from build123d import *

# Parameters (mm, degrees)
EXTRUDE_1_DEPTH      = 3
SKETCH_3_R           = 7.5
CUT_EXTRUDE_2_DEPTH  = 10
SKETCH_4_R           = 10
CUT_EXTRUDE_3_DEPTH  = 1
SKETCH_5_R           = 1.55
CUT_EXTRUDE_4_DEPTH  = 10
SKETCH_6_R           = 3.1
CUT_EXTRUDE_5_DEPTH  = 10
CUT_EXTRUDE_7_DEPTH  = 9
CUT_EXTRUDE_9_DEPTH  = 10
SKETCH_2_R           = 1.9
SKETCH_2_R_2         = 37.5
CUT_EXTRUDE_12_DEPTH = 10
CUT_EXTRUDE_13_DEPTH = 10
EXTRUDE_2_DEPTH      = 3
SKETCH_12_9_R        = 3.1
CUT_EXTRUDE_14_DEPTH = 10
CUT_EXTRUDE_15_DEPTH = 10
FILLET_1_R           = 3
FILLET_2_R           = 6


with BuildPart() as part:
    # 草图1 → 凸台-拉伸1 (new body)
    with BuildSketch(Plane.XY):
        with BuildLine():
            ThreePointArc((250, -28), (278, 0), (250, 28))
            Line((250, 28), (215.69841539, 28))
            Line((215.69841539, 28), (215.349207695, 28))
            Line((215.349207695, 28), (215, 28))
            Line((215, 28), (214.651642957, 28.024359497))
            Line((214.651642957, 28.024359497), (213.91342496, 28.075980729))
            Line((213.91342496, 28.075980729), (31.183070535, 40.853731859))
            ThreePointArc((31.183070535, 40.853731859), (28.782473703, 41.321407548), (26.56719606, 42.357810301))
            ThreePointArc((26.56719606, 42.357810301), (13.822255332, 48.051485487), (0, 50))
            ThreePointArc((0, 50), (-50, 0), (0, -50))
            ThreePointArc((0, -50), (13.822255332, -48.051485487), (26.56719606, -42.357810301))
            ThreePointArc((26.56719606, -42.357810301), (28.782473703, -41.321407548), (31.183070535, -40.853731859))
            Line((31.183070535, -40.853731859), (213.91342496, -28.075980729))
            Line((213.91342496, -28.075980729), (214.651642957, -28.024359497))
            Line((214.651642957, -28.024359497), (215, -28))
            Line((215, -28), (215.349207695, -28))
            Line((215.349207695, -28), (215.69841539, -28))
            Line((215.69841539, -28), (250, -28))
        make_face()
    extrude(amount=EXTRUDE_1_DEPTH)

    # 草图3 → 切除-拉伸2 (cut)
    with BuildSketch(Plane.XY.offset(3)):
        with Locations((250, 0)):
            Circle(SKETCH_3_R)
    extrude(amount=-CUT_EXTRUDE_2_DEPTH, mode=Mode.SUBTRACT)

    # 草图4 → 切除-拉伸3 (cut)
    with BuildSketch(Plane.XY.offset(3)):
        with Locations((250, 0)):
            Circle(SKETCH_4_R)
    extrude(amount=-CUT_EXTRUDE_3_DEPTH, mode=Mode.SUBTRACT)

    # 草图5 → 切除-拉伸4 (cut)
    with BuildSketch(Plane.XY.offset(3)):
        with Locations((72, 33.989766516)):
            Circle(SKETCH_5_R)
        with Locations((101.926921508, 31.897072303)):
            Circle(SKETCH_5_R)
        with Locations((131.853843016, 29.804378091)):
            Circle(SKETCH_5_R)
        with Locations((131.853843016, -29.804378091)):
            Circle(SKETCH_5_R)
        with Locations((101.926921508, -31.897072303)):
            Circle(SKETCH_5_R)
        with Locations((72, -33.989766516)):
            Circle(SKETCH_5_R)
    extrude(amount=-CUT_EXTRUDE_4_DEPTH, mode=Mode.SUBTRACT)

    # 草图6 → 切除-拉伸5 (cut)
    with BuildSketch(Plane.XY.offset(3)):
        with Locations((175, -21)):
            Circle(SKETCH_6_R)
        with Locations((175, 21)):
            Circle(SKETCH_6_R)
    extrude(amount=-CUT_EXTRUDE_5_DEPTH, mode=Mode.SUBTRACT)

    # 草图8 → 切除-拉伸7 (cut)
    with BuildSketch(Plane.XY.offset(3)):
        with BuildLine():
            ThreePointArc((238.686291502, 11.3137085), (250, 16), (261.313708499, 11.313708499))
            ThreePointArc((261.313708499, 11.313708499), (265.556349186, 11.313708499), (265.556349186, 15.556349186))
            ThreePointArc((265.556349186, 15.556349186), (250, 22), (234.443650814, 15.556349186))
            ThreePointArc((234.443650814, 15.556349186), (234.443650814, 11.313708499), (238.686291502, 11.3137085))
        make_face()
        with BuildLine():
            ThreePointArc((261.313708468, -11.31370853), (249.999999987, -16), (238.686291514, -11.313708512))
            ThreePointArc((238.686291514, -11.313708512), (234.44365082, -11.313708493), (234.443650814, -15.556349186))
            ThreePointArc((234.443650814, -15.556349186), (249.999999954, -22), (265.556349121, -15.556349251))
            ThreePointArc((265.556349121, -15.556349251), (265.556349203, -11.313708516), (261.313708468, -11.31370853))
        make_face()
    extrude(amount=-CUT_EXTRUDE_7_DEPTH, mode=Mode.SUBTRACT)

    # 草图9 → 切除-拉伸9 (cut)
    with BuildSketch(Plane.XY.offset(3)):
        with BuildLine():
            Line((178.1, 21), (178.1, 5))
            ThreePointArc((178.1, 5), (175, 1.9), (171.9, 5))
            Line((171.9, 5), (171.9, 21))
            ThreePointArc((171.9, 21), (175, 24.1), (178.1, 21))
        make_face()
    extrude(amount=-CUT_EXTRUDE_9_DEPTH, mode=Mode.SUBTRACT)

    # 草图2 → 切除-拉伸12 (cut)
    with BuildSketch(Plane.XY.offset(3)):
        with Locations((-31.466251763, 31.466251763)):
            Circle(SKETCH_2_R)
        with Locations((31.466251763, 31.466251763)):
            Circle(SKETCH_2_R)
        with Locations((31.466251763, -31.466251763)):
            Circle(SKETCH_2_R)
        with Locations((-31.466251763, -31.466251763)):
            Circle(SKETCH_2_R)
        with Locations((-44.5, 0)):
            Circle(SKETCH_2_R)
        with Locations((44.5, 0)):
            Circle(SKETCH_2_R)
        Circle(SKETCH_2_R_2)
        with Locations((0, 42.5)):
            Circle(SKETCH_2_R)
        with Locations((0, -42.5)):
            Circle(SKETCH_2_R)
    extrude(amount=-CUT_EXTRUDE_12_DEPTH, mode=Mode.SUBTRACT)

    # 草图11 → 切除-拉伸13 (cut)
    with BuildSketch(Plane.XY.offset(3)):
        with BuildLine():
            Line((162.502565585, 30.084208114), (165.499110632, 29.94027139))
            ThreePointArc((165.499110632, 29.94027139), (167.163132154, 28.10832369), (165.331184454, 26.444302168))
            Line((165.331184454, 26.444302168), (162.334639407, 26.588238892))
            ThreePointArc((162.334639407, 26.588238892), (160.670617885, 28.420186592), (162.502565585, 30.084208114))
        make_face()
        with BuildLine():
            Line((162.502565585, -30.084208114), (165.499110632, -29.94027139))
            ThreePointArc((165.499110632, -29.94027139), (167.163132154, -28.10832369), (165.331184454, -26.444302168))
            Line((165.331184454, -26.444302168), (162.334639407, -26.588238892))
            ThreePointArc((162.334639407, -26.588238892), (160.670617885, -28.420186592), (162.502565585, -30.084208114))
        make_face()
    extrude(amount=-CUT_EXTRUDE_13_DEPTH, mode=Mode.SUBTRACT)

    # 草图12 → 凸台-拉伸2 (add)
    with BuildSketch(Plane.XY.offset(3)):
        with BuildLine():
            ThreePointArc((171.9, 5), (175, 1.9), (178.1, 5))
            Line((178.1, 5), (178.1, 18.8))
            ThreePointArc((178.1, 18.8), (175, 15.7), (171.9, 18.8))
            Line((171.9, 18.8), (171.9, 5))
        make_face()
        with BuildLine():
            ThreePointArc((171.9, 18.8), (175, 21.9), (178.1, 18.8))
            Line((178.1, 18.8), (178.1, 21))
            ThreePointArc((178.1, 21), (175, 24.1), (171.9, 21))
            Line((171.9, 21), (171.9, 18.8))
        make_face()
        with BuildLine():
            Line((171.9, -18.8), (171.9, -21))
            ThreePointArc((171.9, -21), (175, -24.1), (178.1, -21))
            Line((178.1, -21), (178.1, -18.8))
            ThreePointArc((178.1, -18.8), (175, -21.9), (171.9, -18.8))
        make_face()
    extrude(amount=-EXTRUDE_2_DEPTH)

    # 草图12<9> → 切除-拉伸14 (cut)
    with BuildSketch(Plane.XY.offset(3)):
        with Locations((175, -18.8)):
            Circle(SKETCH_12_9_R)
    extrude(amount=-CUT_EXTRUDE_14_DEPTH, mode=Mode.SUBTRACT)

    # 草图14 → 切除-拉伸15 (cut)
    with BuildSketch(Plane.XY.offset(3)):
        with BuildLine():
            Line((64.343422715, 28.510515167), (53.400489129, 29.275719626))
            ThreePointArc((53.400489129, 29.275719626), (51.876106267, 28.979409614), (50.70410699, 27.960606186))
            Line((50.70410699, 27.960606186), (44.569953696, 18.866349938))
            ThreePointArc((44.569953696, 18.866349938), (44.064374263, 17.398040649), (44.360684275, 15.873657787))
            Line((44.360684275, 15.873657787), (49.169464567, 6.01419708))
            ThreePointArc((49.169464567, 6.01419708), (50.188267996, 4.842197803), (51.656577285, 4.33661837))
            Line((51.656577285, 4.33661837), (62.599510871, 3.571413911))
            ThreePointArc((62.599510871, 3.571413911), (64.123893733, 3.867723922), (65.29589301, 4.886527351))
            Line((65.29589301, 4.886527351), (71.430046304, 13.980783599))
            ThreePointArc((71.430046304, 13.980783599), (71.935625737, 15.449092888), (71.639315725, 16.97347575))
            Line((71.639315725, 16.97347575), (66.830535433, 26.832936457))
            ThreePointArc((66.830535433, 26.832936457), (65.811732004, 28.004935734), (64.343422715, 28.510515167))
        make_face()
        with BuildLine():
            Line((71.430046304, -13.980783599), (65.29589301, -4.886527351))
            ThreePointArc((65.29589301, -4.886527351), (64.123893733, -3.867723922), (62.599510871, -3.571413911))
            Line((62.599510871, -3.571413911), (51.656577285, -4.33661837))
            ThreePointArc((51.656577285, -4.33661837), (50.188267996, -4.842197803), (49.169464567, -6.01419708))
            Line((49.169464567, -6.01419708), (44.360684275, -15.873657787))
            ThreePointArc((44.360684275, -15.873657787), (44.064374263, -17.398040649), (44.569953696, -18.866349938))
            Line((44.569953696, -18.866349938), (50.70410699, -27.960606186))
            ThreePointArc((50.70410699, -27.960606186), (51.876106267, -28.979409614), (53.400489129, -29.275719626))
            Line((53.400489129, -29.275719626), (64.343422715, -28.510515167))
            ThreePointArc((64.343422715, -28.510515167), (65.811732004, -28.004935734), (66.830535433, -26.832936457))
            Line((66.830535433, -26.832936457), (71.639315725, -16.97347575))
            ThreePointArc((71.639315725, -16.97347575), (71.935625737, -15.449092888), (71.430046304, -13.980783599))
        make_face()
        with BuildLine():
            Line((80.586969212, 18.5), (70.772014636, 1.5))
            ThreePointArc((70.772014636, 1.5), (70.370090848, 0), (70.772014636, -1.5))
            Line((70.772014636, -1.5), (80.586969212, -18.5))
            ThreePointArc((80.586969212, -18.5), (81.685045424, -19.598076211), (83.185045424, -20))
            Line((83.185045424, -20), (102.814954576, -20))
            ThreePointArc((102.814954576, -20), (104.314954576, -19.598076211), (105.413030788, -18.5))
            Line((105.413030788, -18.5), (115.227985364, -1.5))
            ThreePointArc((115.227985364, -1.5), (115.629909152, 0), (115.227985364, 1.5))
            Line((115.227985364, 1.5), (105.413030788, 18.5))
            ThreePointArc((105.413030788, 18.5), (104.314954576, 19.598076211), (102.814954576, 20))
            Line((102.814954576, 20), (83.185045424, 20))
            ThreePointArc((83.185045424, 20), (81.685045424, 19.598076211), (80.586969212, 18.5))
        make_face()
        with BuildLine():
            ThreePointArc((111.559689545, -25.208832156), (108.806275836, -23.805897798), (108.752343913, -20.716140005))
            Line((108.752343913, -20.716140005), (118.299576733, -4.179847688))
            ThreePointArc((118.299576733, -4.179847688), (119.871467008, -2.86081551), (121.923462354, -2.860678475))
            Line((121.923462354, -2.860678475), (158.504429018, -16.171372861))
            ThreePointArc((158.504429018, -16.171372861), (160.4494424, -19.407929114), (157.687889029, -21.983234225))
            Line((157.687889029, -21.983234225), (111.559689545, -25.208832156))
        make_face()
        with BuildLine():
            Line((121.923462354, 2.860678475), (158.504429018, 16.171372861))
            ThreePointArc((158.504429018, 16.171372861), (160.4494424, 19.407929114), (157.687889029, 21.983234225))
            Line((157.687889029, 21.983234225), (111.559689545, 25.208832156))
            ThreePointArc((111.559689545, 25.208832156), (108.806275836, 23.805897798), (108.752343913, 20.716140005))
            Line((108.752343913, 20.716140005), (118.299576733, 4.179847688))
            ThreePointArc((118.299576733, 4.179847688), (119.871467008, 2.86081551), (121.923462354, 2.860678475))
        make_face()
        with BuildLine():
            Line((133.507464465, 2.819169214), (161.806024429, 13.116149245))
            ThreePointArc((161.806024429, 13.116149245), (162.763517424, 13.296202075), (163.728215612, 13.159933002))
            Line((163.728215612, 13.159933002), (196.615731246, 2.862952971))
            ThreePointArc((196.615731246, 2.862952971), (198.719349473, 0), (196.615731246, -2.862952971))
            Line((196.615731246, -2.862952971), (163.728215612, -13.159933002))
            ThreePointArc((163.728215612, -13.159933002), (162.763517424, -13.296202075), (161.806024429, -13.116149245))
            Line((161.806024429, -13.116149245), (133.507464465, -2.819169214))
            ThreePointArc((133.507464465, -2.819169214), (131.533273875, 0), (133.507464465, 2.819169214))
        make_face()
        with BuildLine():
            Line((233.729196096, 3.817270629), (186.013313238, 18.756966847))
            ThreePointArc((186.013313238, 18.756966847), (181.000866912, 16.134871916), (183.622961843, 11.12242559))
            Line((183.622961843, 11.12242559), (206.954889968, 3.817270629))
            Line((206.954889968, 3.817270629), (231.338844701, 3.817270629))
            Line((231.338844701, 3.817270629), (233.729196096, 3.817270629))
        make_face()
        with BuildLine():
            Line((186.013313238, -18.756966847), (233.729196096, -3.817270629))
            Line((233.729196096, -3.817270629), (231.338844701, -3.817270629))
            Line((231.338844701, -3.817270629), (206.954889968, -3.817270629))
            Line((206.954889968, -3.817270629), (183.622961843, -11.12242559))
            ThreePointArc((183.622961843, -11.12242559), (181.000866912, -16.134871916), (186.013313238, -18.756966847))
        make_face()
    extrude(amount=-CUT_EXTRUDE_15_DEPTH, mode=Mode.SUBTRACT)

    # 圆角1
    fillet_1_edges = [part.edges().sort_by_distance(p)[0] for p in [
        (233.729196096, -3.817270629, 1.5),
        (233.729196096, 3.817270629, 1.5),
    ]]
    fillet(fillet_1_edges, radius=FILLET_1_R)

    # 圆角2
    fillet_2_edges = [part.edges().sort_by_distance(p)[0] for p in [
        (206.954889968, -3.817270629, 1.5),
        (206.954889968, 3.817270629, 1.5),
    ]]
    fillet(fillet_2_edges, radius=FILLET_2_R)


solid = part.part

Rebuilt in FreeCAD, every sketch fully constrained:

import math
import FreeCAD as App
import Part
import Sketcher
from FreeCAD import Vector
Q = App.Units.Quantity


def edges_at(feature, points):
    """Names of the edges that pass closest to the given points."""
    edges = feature.Shape.Edges
    near = lambda p: min(range(len(edges)), key=lambda i: edges[i].distToShape(Part.Vertex(*p))[0])
    return sorted({f"Edge{near(p) + 1}" for p in points})

doc = App.newDocument("Part")
body = doc.addObject("PartDesign::Body", "Body")

sketch1 = body.newObject("Sketcher::SketchObject", "Sketch")
sketch1.AttachmentSupport = (doc.getObject("XY_Plane"), [""])
sketch1.MapMode = "FlatFace"
sketch1.addGeometry([
    Part.ArcOfCircle(Part.Circle(Vector(250, 0, 0), Vector(0, 0, 1), 28), math.radians(-90), math.radians(90)),
    Part.LineSegment(Vector(250, 28, 0), Vector(215, 28, 0)),
    Part.LineSegment(Vector(215, 28, 0), Vector(214.651643, 28.024359, 0)),
    Part.LineSegment(Vector(214.651643, 28.024359, 0), Vector(213.913425, 28.075981, 0)),
    Part.LineSegment(Vector(213.913425, 28.075981, 0), Vector(31.183071, 40.853732, 0)),
    Part.ArcOfCircle(Part.Circle(Vector(31.880635, 50.829372, 0), Vector(0, 0, 1), 10), math.radians(-122.096303), math.radians(-94)),
    Part.ArcOfCircle(Part.Circle(Vector(0, 0, 0), Vector(0, 0, 1), 50), math.radians(57.903697), math.radians(90)),
    Part.ArcOfCircle(Part.Circle(Vector(0, 0, 0), Vector(0, 0, 1), 50), math.radians(90), math.radians(270)),
    Part.ArcOfCircle(Part.Circle(Vector(0, 0, 0), Vector(0, 0, 1), 50), math.radians(-90), math.radians(-57.903697)),
    Part.ArcOfCircle(Part.Circle(Vector(31.880635, -50.829372, 0), Vector(0, 0, 1), 10), math.radians(94), math.radians(122.096303)),
    Part.LineSegment(Vector(31.183071, -40.853732, 0), Vector(213.913425, -28.075981, 0)),
    Part.LineSegment(Vector(213.913425, -28.075981, 0), Vector(214.651643, -28.024359, 0)),
    Part.LineSegment(Vector(214.651643, -28.024359, 0), Vector(215, -28, 0)),
    Part.LineSegment(Vector(215, -28, 0), Vector(250, -28, 0)),
], False)
sketch1.addConstraint([
    Sketcher.Constraint("Tangent", 0, 2, 1, 1),
    Sketcher.Constraint("Coincident", 1, 2, 2, 1),
    Sketcher.Constraint("Coincident", 2, 2, 3, 1),
    Sketcher.Constraint("Coincident", 3, 2, 4, 1),
    Sketcher.Constraint("Tangent", 4, 2, 5, 2),
    Sketcher.Constraint("Tangent", 5, 1, 6, 1),
    Sketcher.Constraint("Tangent", 6, 2, 7, 1),
    Sketcher.Constraint("Tangent", 7, 2, 8, 1),
    Sketcher.Constraint("Tangent", 8, 2, 9, 2),
    Sketcher.Constraint("Tangent", 9, 1, 10, 1),
    Sketcher.Constraint("Coincident", 10, 2, 11, 1),
    Sketcher.Constraint("Coincident", 11, 2, 12, 1),
    Sketcher.Constraint("Coincident", 12, 2, 13, 1),
    Sketcher.Constraint("Tangent", 13, 2, 0, 1),
    Sketcher.Constraint("Horizontal", 1),
    Sketcher.Constraint("Horizontal", 13),
    Sketcher.Constraint("Coincident", 6, 3, -1, 1),
    Sketcher.Constraint("Equal", 6, 7),
    Sketcher.Constraint("Equal", 7, 8),
    Sketcher.Constraint("Equal", 5, 9),
    Sketcher.Constraint("Symmetric", 4, 2, 9, 1, -1),
    Sketcher.Constraint("Symmetric", 2, 2, 11, 2, -1),
    Sketcher.Constraint("Symmetric", 1, 2, 12, 2, -1),
    Sketcher.Constraint("PointOnObject", 6, 2, -2),
    Sketcher.Constraint("PointOnObject", 7, 2, -2),
    Sketcher.Constraint("Parallel", 2, 3),
    Sketcher.Constraint("Parallel", 3, 4),
    Sketcher.Constraint("Vertical", 3, 2, 10, 2),
    Sketcher.Constraint("Radius", 0, Q("28 mm")),
    Sketcher.Constraint("Radius", 5, Q("10 mm")),
    Sketcher.Constraint("Radius", 6, Q("50 mm")),
    Sketcher.Constraint("DistanceX", 1, 2, 1, 1, Q("35 mm")),
    Sketcher.Constraint("Angle", 4, Q("176 deg")),
    Sketcher.Constraint("DistanceX", -1, 1, 0, 3, Q("250 mm")),
    Sketcher.Constraint("Distance", 3, Q("0.740021 mm")),
    Sketcher.Constraint("DistanceY", -1, 1, 2, 2, Q("28.024359 mm")),
])
pad1 = body.newObject("PartDesign::Pad", "Pad")
pad1.Profile = sketch1
pad1.Length = 3

sketch2 = body.newObject("Sketcher::SketchObject", "Sketch001")
sketch2.AttachmentSupport = (doc.getObject("XY_Plane"), [""])
sketch2.MapMode = "FlatFace"
sketch2.AttachmentOffset = App.Placement(Vector(0, 0, 3), App.Rotation())
sketch2.addGeometry(Part.Circle(Vector(250, 0, 0), Vector(0, 0, 1), 7.5), False)
sketch2.addConstraint([
    Sketcher.Constraint("PointOnObject", 0, 3, -1),
    Sketcher.Constraint("Diameter", 0, Q("15 mm")),
    Sketcher.Constraint("DistanceX", -1, 1, 0, 3, Q("250 mm")),
])
pocket1 = body.newObject("PartDesign::Pocket", "Pocket")
pocket1.Profile = sketch2
pocket1.Length = 10

sketch3 = body.newObject("Sketcher::SketchObject", "Sketch002")
sketch3.AttachmentSupport = (doc.getObject("XY_Plane"), [""])
sketch3.MapMode = "FlatFace"
sketch3.AttachmentOffset = App.Placement(Vector(0, 0, 3), App.Rotation())
sketch3.addGeometry(Part.Circle(Vector(250, 0, 0), Vector(0, 0, 1), 10), False)
sketch3.addConstraint([
    Sketcher.Constraint("PointOnObject", 0, 3, -1),
    Sketcher.Constraint("Diameter", 0, Q("20 mm")),
    Sketcher.Constraint("DistanceX", -1, 1, 0, 3, Q("250 mm")),
])
pocket2 = body.newObject("PartDesign::Pocket", "Pocket001")
pocket2.Profile = sketch3
pocket2.Length = 1

sketch4 = body.newObject("Sketcher::SketchObject", "Sketch003")
sketch4.AttachmentSupport = (doc.getObject("XY_Plane"), [""])
sketch4.MapMode = "FlatFace"
sketch4.AttachmentOffset = App.Placement(Vector(0, 0, 3), App.Rotation())
sketch4.addGeometry([
    Part.Circle(Vector(72, 33.989767, 0), Vector(0, 0, 1), 1.55),
    Part.Circle(Vector(101.926922, 31.897072, 0), Vector(0, 0, 1), 1.55),
    Part.Circle(Vector(131.853843, 29.804378, 0), Vector(0, 0, 1), 1.55),
    Part.Circle(Vector(131.853843, -29.804378, 0), Vector(0, 0, 1), 1.55),
    Part.Circle(Vector(101.926922, -31.897072, 0), Vector(0, 0, 1), 1.55),
    Part.Circle(Vector(72, -33.989767, 0), Vector(0, 0, 1), 1.55),
], False)
sketch4.addConstraint([
    Sketcher.Constraint("Equal", 0, 1),
    Sketcher.Constraint("Equal", 1, 2),
    Sketcher.Constraint("Equal", 2, 3),
    Sketcher.Constraint("Equal", 3, 4),
    Sketcher.Constraint("Equal", 4, 5),
    Sketcher.Constraint("Symmetric", 2, 3, 3, 3, -1),
    Sketcher.Constraint("Symmetric", 1, 3, 4, 3, -1),
    Sketcher.Constraint("Symmetric", 0, 3, 5, 3, -1),
    Sketcher.Constraint("Diameter", 0, Q("3.1 mm")),
    Sketcher.Constraint("DistanceX", -1, 1, 0, 3, Q("72 mm")),
    Sketcher.Constraint("DistanceX", -1, 1, 1, 3, Q("101.926922 mm")),
    Sketcher.Constraint("DistanceY", -1, 1, 2, 3, Q("29.804378 mm")),
    Sketcher.Constraint("DistanceX", 1, 3, 2, 3, Q("29.926922 mm")),
    Sketcher.Constraint("DistanceY", 2, 3, 0, 3, Q("4.185388 mm")),
    Sketcher.Constraint("DistanceY", 3, 3, 1, 3, Q("61.70145 mm")),
])
pocket3 = body.newObject("PartDesign::Pocket", "Pocket002")
pocket3.Profile = sketch4
pocket3.Length = 10

sketch5 = body.newObject("Sketcher::SketchObject", "Sketch004")
sketch5.AttachmentSupport = (doc.getObject("XY_Plane"), [""])
sketch5.MapMode = "FlatFace"
sketch5.AttachmentOffset = App.Placement(Vector(0, 0, 3), App.Rotation())
sketch5.addGeometry([
    Part.Circle(Vector(175, -21, 0), Vector(0, 0, 1), 3.1),
    Part.Circle(Vector(175, 21, 0), Vector(0, 0, 1), 3.1),
], False)
sketch5.addConstraint([
    Sketcher.Constraint("Equal", 0, 1),
    Sketcher.Constraint("Symmetric", 0, 3, 1, 3, -1),
    Sketcher.Constraint("Diameter", 0, Q("6.2 mm")),
    Sketcher.Constraint("DistanceX", -1, 1, 0, 3, Q("175 mm")),
    Sketcher.Constraint("DistanceY", 0, 3, -1, 1, Q("21 mm")),
])
pocket4 = body.newObject("PartDesign::Pocket", "Pocket003")
pocket4.Profile = sketch5
pocket4.Length = 10

sketch6 = body.newObject("Sketcher::SketchObject", "Sketch005")
sketch6.AttachmentSupport = (doc.getObject("XY_Plane"), [""])
sketch6.MapMode = "FlatFace"
sketch6.AttachmentOffset = App.Placement(Vector(0, 0, 3), App.Rotation())
sketch6.addGeometry([
    Part.ArcOfCircle(Part.Circle(Vector(250, 0, 0), Vector(0, 0, 1), 16), math.radians(45), math.radians(135)),
    Part.ArcOfCircle(Part.Circle(Vector(263.435029, 13.435029, 0), Vector(0, 0, 1), 3), math.radians(-135), math.radians(45)),
    Part.ArcOfCircle(Part.Circle(Vector(250, 0, 0), Vector(0, 0, 1), 22), math.radians(45), math.radians(135)),
    Part.ArcOfCircle(Part.Circle(Vector(236.564971, 13.435029, 0), Vector(0, 0, 1), 3), math.radians(135), math.radians(315)),
    Part.ArcOfCircle(Part.Circle(Vector(250, 0, 0), Vector(0, 0, 1), 16), math.radians(-135), math.radians(-45)),
    Part.ArcOfCircle(Part.Circle(Vector(236.564971, -13.435029, 0), Vector(0, 0, 1), 3), math.radians(45), math.radians(225)),
    Part.ArcOfCircle(Part.Circle(Vector(250, 0, 0), Vector(0, 0, 1), 22), math.radians(-135), math.radians(-45)),
    Part.ArcOfCircle(Part.Circle(Vector(263.435029, -13.435029, 0), Vector(0, 0, 1), 3), math.radians(-45.000002), math.radians(135.000001)),
], False)
sketch6.addConstraint([
    Sketcher.Constraint("Tangent", 0, 1, 1, 1),
    Sketcher.Constraint("Tangent", 1, 2, 2, 1),
    Sketcher.Constraint("Tangent", 2, 2, 3, 1),
    Sketcher.Constraint("Tangent", 3, 2, 0, 2),
    Sketcher.Constraint("Tangent", 4, 1, 5, 1),
    Sketcher.Constraint("Tangent", 5, 2, 6, 1),
    Sketcher.Constraint("Tangent", 6, 2, 7, 1),
    Sketcher.Constraint("Tangent", 7, 2, 4, 2),
    Sketcher.Constraint("Coincident", 2, 3, 0, 3),
    Sketcher.Constraint("Coincident", 4, 3, 0, 3),
    Sketcher.Constraint("Coincident", 6, 3, 0, 3),
    Sketcher.Constraint("Equal", 0, 4),
    Sketcher.Constraint("Equal", 3, 5),
    Sketcher.Constraint("Symmetric", 3, 3, 5, 3, -1),
    Sketcher.Constraint("Horizontal", 1, 3, 3, 3),
    Sketcher.Constraint("Horizontal", 5, 3, 7, 3),
    Sketcher.Constraint("Radius", 0, Q("16 mm")),
    Sketcher.Constraint("Radius", 1, Q("3 mm")),
    Sketcher.Constraint("DistanceX", -1, 1, 0, 3, Q("250 mm")),
    Sketcher.Constraint("DistanceX", -1, 1, 1, 3, Q("263.435029 mm")),
])
pocket5 = body.newObject("PartDesign::Pocket", "Pocket004")
pocket5.Profile = sketch6
pocket5.Length = 9

sketch7 = body.newObject("Sketcher::SketchObject", "Sketch006")
sketch7.AttachmentSupport = (doc.getObject("XY_Plane"), [""])
sketch7.MapMode = "FlatFace"
sketch7.AttachmentOffset = App.Placement(Vector(0, 0, 3), App.Rotation())
sketch7.addGeometry([
    Part.LineSegment(Vector(178.1, 5, 0), Vector(178.1, 21, 0)),
    Part.ArcOfCircle(Part.Circle(Vector(175, 21, 0), Vector(0, 0, 1), 3.1), math.radians(0), math.radians(180)),
    Part.LineSegment(Vector(171.9, 21, 0), Vector(171.9, 5, 0)),
    Part.ArcOfCircle(Part.Circle(Vector(175, 5, 0), Vector(0, 0, 1), 3.1), math.radians(180), math.radians(360)),
], False)
sketch7.addConstraint([
    Sketcher.Constraint("Tangent", 0, 2, 1, 1),
    Sketcher.Constraint("Tangent", 1, 2, 2, 1),
    Sketcher.Constraint("Tangent", 2, 2, 3, 1),
    Sketcher.Constraint("Tangent", 3, 2, 0, 1),
    Sketcher.Constraint("Vertical", 0),
    Sketcher.Constraint("Vertical", 2),
    Sketcher.Constraint("Radius", 1, Q("3.1 mm")),
    Sketcher.Constraint("DistanceY", 0, 1, 0, 2, Q("16 mm")),
    Sketcher.Constraint("DistanceX", -1, 1, 1, 3, Q("175 mm")),
    Sketcher.Constraint("DistanceY", -1, 1, 1, 3, Q("21 mm")),
])
pocket6 = body.newObject("PartDesign::Pocket", "Pocket005")
pocket6.Profile = sketch7
pocket6.Length = 10

sketch8 = body.newObject("Sketcher::SketchObject", "Sketch007")
sketch8.AttachmentSupport = (doc.getObject("XY_Plane"), [""])
sketch8.MapMode = "FlatFace"
sketch8.AttachmentOffset = App.Placement(Vector(0, 0, 3), App.Rotation())
sketch8.addGeometry([
    Part.Circle(Vector(-31.466252, 31.466252, 0), Vector(0, 0, 1), 1.9),
    Part.Circle(Vector(31.466252, 31.466252, 0), Vector(0, 0, 1), 1.9),
    Part.Circle(Vector(31.466252, -31.466252, 0), Vector(0, 0, 1), 1.9),
    Part.Circle(Vector(-31.466252, -31.466252, 0), Vector(0, 0, 1), 1.9),
    Part.Circle(Vector(-44.5, 0, 0), Vector(0, 0, 1), 1.9),
    Part.Circle(Vector(44.5, 0, 0), Vector(0, 0, 1), 1.9),
    Part.Circle(Vector(0, 0, 0), Vector(0, 0, 1), 37.5),
    Part.Circle(Vector(0, 42.5, 0), Vector(0, 0, 1), 1.9),
    Part.Circle(Vector(0, -42.5, 0), Vector(0, 0, 1), 1.9),
], False)
sketch8.addConstraint([
    Sketcher.Constraint("Coincident", 6, 3, -1, 1),
    Sketcher.Constraint("Equal", 0, 1),
    Sketcher.Constraint("Equal", 1, 2),
    Sketcher.Constraint("Equal", 2, 3),
    Sketcher.Constraint("Equal", 3, 4),
    Sketcher.Constraint("Equal", 4, 5),
    Sketcher.Constraint("Equal", 5, 7),
    Sketcher.Constraint("Equal", 7, 8),
    Sketcher.Constraint("Symmetric", 0, 3, 2, 3, -1, 1),
    Sketcher.Constraint("Symmetric", 1, 3, 3, 3, -1, 1),
    Sketcher.Constraint("Symmetric", 4, 3, 5, 3, -1, 1),
    Sketcher.Constraint("Symmetric", 7, 3, 8, 3, -1, 1),
    Sketcher.Constraint("Symmetric", 0, 3, 1, 3, -2),
    Sketcher.Constraint("PointOnObject", 4, 3, -1),
    Sketcher.Constraint("PointOnObject", 7, 3, -2),
    Sketcher.Constraint("Diameter", 6, Q("75 mm")),
    Sketcher.Constraint("Diameter", 0, Q("3.8 mm")),
    Sketcher.Constraint("DistanceX", 4, 3, 5, 3, Q("89 mm")),
    Sketcher.Constraint("DistanceY", -1, 1, 7, 3, Q("42.5 mm")),
    Sketcher.Constraint("DistanceX", 0, 3, -1, 1, Q("31.466252 mm")),
    Sketcher.Constraint("DistanceY", -1, 1, 0, 3, Q("31.466252 mm")),
])
pocket7 = body.newObject("PartDesign::Pocket", "Pocket006")
pocket7.Profile = sketch8
pocket7.Length = 10

sketch9 = body.newObject("Sketcher::SketchObject", "Sketch008")
sketch9.AttachmentSupport = (doc.getObject("XY_Plane"), [""])
sketch9.MapMode = "FlatFace"
sketch9.AttachmentOffset = App.Placement(Vector(0, 0, 3), App.Rotation())
sketch9.addGeometry([
    Part.LineSegment(Vector(165.499111, 29.940271, 0), Vector(162.502566, 30.084208, 0)),
    Part.ArcOfCircle(Part.Circle(Vector(162.418602, 28.336224, 0), Vector(0, 0, 1), 1.75), math.radians(87.249955), math.radians(267.249955)),
    Part.LineSegment(Vector(162.334639, 26.588239, 0), Vector(165.331184, 26.444302, 0)),
    Part.ArcOfCircle(Part.Circle(Vector(165.415148, 28.192287, 0), Vector(0, 0, 1), 1.75), math.radians(-92.750045), math.radians(87.249955)),
    Part.LineSegment(Vector(162.502566, -30.084208, 0), Vector(165.499111, -29.940271, 0)),
    Part.ArcOfCircle(Part.Circle(Vector(165.415148, -28.192287, 0), Vector(0, 0, 1), 1.75), math.radians(-87.249955), math.radians(92.750045)),
    Part.LineSegment(Vector(165.331184, -26.444302, 0), Vector(162.334639, -26.588239, 0)),
    Part.ArcOfCircle(Part.Circle(Vector(162.418602, -28.336224, 0), Vector(0, 0, 1), 1.75), math.radians(92.750045), math.radians(272.750045)),
], False)
sketch9.addConstraint([
    Sketcher.Constraint("Tangent", 0, 2, 1, 1),
    Sketcher.Constraint("Tangent", 1, 2, 2, 1),
    Sketcher.Constraint("Tangent", 2, 2, 3, 1),
    Sketcher.Constraint("Tangent", 3, 2, 0, 1),
    Sketcher.Constraint("Tangent", 4, 2, 5, 1),
    Sketcher.Constraint("Tangent", 5, 2, 6, 1),
    Sketcher.Constraint("Tangent", 6, 2, 7, 1),
    Sketcher.Constraint("Tangent", 7, 2, 4, 1),
    Sketcher.Constraint("Equal", 1, 3),
    Sketcher.Constraint("Equal", 3, 5),
    Sketcher.Constraint("Equal", 5, 7),
    Sketcher.Constraint("Symmetric", 3, 3, 5, 3, -1),
    Sketcher.Constraint("Symmetric", 1, 3, 7, 3, -1),
    Sketcher.Constraint("Radius", 1, Q("1.75 mm")),
    Sketcher.Constraint("Distance", 0, Q("3 mm")),
    Sketcher.Constraint("DistanceY", -1, 1, 0, 2, Q("30.084208 mm")),
    Sketcher.Constraint("DistanceX", -1, 1, 1, 2, Q("162.334639 mm")),
    Sketcher.Constraint("DistanceY", -1, 1, 1, 2, Q("26.588239 mm")),
])
pocket8 = body.newObject("PartDesign::Pocket", "Pocket007")
pocket8.Profile = sketch9
pocket8.Length = 10

sketch10 = body.newObject("Sketcher::SketchObject", "Sketch009")
sketch10.AttachmentSupport = (doc.getObject("XY_Plane"), [""])
sketch10.MapMode = "FlatFace"
sketch10.AttachmentOffset = App.Placement(Vector(0, 0, 3), App.Rotation())
sketch10.addGeometry([
    Part.ArcOfCircle(Part.Circle(Vector(175, 5, 0), Vector(0, 0, 1), 3.1), math.radians(180), math.radians(360)),
    Part.LineSegment(Vector(178.1, 5, 0), Vector(178.1, 18.8, 0)),
    Part.ArcOfCircle(Part.Circle(Vector(175, 18.8, 0), Vector(0, 0, 1), 3.1), math.radians(180), math.radians(360)),
    Part.LineSegment(Vector(171.9, 18.8, 0), Vector(171.9, 5, 0)),
    Part.ArcOfCircle(Part.Circle(Vector(175, 18.8, 0), Vector(0, 0, 1), 3.1), math.radians(0), math.radians(180)),
    Part.LineSegment(Vector(178.1, 18.8, 0), Vector(178.1, 21, 0)),
    Part.ArcOfCircle(Part.Circle(Vector(175, 21, 0), Vector(0, 0, 1), 3.1), math.radians(0), math.radians(180)),
    Part.LineSegment(Vector(171.9, 21, 0), Vector(171.9, 18.8, 0)),
    Part.LineSegment(Vector(171.9, -18.8, 0), Vector(171.9, -21, 0)),
    Part.ArcOfCircle(Part.Circle(Vector(175, -21, 0), Vector(0, 0, 1), 3.1), math.radians(180), math.radians(360)),
    Part.LineSegment(Vector(178.1, -21, 0), Vector(178.1, -18.8, 0)),
    Part.ArcOfCircle(Part.Circle(Vector(175, -18.8, 0), Vector(0, 0, 1), 3.1), math.radians(180), math.radians(360)),
], False)
sketch10.addConstraint([
    Sketcher.Constraint("Tangent", 0, 2, 1, 1),
    Sketcher.Constraint("Tangent", 1, 2, 2, 2),
    Sketcher.Constraint("Tangent", 2, 1, 3, 1),
    Sketcher.Constraint("Tangent", 3, 2, 0, 1),
    Sketcher.Constraint("Tangent", 4, 1, 5, 1),
    Sketcher.Constraint("Tangent", 5, 2, 6, 1),
    Sketcher.Constraint("Tangent", 6, 2, 7, 1),
    Sketcher.Constraint("Tangent", 7, 2, 4, 2),
    Sketcher.Constraint("Tangent", 8, 2, 9, 1),
    Sketcher.Constraint("Tangent", 9, 2, 10, 1),
    Sketcher.Constraint("Tangent", 10, 2, 11, 2),
    Sketcher.Constraint("Tangent", 11, 1, 8, 1),
    Sketcher.Constraint("Vertical", 1),
    Sketcher.Constraint("Vertical", 3),
    Sketcher.Constraint("Vertical", 5),
    Sketcher.Constraint("Vertical", 7),
    Sketcher.Constraint("Vertical", 8),
    Sketcher.Constraint("Vertical", 10),
    Sketcher.Constraint("Coincident", 4, 3, 2, 3),
    Sketcher.Constraint("Equal", 2, 4),
    Sketcher.Constraint("Equal", 6, 9),
    Sketcher.Constraint("Symmetric", 6, 3, 9, 3, -1),
    Sketcher.Constraint("Equal", 7, 8),
    Sketcher.Constraint("Radius", 0, Q("3.1 mm")),
    Sketcher.Constraint("DistanceY", 1, 1, 1, 2, Q("13.8 mm")),
    Sketcher.Constraint("DistanceY", 5, 1, 5, 2, Q("2.2 mm")),
    Sketcher.Constraint("DistanceX", -1, 1, 0, 3, Q("175 mm")),
    Sketcher.Constraint("DistanceY", -1, 1, 0, 3, Q("5 mm")),
])
pad2 = body.newObject("PartDesign::Pad", "Pad001")
pad2.Profile = sketch10
pad2.Length = 3
pad2.Reversed = True

sketch11 = body.newObject("Sketcher::SketchObject", "Sketch010")
sketch11.AttachmentSupport = (doc.getObject("XY_Plane"), [""])
sketch11.MapMode = "FlatFace"
sketch11.AttachmentOffset = App.Placement(Vector(0, 0, 3), App.Rotation())
sketch11.addGeometry(Part.Circle(Vector(175, -18.8, 0), Vector(0, 0, 1), 3.1), False)
sketch11.addConstraint([
    Sketcher.Constraint("Diameter", 0, Q("6.2 mm")),
    Sketcher.Constraint("DistanceX", -1, 1, 0, 3, Q("175 mm")),
    Sketcher.Constraint("DistanceY", 0, 3, -1, 1, Q("18.8 mm")),
])
pocket9 = body.newObject("PartDesign::Pocket", "Pocket008")
pocket9.Profile = sketch11
pocket9.Length = 10

sketch12 = body.newObject("Sketcher::SketchObject", "Sketch011")
sketch12.AttachmentSupport = (doc.getObject("XY_Plane"), [""])
sketch12.MapMode = "FlatFace"
sketch12.AttachmentOffset = App.Placement(Vector(0, 0, 3), App.Rotation())
sketch12.addGeometry([
    Part.LineSegment(Vector(64.343423, 28.510515, 0), Vector(53.400489, 29.27572, 0)),
    Part.ArcOfCircle(Part.Circle(Vector(53.19122, 26.283027, 0), Vector(0, 0, 1), 3), math.radians(86), math.radians(146)),
    Part.LineSegment(Vector(50.704107, 27.960606, 0), Vector(44.569954, 18.86635, 0)),
    Part.ArcOfCircle(Part.Circle(Vector(47.057066, 17.188771, 0), Vector(0, 0, 1), 3), math.radians(146), math.radians(206)),
    Part.LineSegment(Vector(44.360684, 15.873658, 0), Vector(49.169465, 6.014197, 0)),
    Part.ArcOfCircle(Part.Circle(Vector(51.865847, 7.329311, 0), Vector(0, 0, 1), 3), math.radians(-154), math.radians(-94)),
    Part.LineSegment(Vector(51.656577, 4.336618, 0), Vector(62.599511, 3.571414, 0)),
    Part.ArcOfCircle(Part.Circle(Vector(62.80878, 6.564106, 0), Vector(0, 0, 1), 3), math.radians(-94), math.radians(-34)),
    Part.LineSegment(Vector(65.295893, 4.886527, 0), Vector(71.430046, 13.980784, 0)),
    Part.ArcOfCircle(Part.Circle(Vector(68.942934, 15.658362, 0), Vector(0, 0, 1), 3), math.radians(-34), math.radians(26)),
    Part.LineSegment(Vector(71.639316, 16.973476, 0), Vector(66.830535, 26.832936, 0)),
    Part.ArcOfCircle(Part.Circle(Vector(64.134153, 25.517823, 0), Vector(0, 0, 1), 3), math.radians(26), math.radians(86)),
    Part.LineSegment(Vector(71.430046, -13.980784, 0), Vector(65.295893, -4.886527, 0)),
    Part.ArcOfCircle(Part.Circle(Vector(62.80878, -6.564106, 0), Vector(0, 0, 1), 3), math.radians(34), math.radians(94)),
    Part.LineSegment(Vector(62.599511, -3.571414, 0), Vector(51.656577, -4.336618, 0)),
    Part.ArcOfCircle(Part.Circle(Vector(51.865847, -7.329311, 0), Vector(0, 0, 1), 3), math.radians(94), math.radians(154)),
    Part.LineSegment(Vector(49.169465, -6.014197, 0), Vector(44.360684, -15.873658, 0)),
    Part.ArcOfCircle(Part.Circle(Vector(47.057066, -17.188771, 0), Vector(0, 0, 1), 3), math.radians(154), math.radians(214)),
    Part.LineSegment(Vector(44.569954, -18.86635, 0), Vector(50.704107, -27.960606, 0)),
    Part.ArcOfCircle(Part.Circle(Vector(53.19122, -26.283027, 0), Vector(0, 0, 1), 3), math.radians(-146), math.radians(-86)),
    Part.LineSegment(Vector(53.400489, -29.27572, 0), Vector(64.343423, -28.510515, 0)),
    Part.ArcOfCircle(Part.Circle(Vector(64.134153, -25.517823, 0), Vector(0, 0, 1), 3), math.radians(-86), math.radians(-26)),
    Part.LineSegment(Vector(66.830535, -26.832936, 0), Vector(71.639316, -16.973476, 0)),
    Part.ArcOfCircle(Part.Circle(Vector(68.942934, -15.658362, 0), Vector(0, 0, 1), 3), math.radians(-26), math.radians(34)),
    Part.LineSegment(Vector(80.586969, 18.5, 0), Vector(70.772015, 1.5, 0)),
    Part.ArcOfCircle(Part.Circle(Vector(73.370091, 0, 0), Vector(0, 0, 1), 3), math.radians(150), math.radians(210)),
    Part.LineSegment(Vector(70.772015, -1.5, 0), Vector(80.586969, -18.5, 0)),
    Part.ArcOfCircle(Part.Circle(Vector(83.185045, -17, 0), Vector(0, 0, 1), 3), math.radians(-150), math.radians(-90)),
    Part.LineSegment(Vector(83.185045, -20, 0), Vector(102.814955, -20, 0)),
    Part.ArcOfCircle(Part.Circle(Vector(102.814955, -17, 0), Vector(0, 0, 1), 3), math.radians(-90), math.radians(-30)),
    Part.LineSegment(Vector(105.413031, -18.5, 0), Vector(115.227985, -1.5, 0)),
    Part.ArcOfCircle(Part.Circle(Vector(112.629909, 0, 0), Vector(0, 0, 1), 3), math.radians(-30), math.radians(30)),
    Part.LineSegment(Vector(115.227985, 1.5, 0), Vector(105.413031, 18.5, 0)),
    Part.ArcOfCircle(Part.Circle(Vector(102.814955, 17, 0), Vector(0, 0, 1), 3), math.radians(30), math.radians(90)),
    Part.LineSegment(Vector(102.814955, 20, 0), Vector(83.185045, 20, 0)),
    Part.ArcOfCircle(Part.Circle(Vector(83.185045, 17, 0), Vector(0, 0, 1), 3), math.radians(90), math.radians(150)),
    Part.ArcOfCircle(Part.Circle(Vector(111.35042, -22.21614, 0), Vector(0, 0, 1), 3), math.radians(150), math.radians(274)),
    Part.LineSegment(Vector(111.55969, -25.208832, 0), Vector(157.687889, -21.983234, 0)),
    Part.ArcOfCircle(Part.Circle(Vector(157.47862, -18.990542, 0), Vector(0, 0, 1), 3), math.radians(-86), math.radians(70.005102)),
    Part.LineSegment(Vector(158.504429, -16.171373, 0), Vector(121.923462, -2.860678, 0)),
    Part.ArcOfCircle(Part.Circle(Vector(120.897653, -5.679848, 0), Vector(0, 0, 1), 3), math.radians(70.005102), math.radians(150)),
    Part.LineSegment(Vector(118.299577, -4.179848, 0), Vector(108.752344, -20.71614, 0)),
    Part.LineSegment(Vector(121.923462, 2.860678, 0), Vector(158.504429, 16.171373, 0)),
    Part.ArcOfCircle(Part.Circle(Vector(157.47862, 18.990542, 0), Vector(0, 0, 1), 3), math.radians(-70.005102), math.radians(86)),
    Part.LineSegment(Vector(157.687889, 21.983234, 0), Vector(111.55969, 25.208832, 0)),
    Part.ArcOfCircle(Part.Circle(Vector(111.35042, 22.21614, 0), Vector(0, 0, 1), 3), math.radians(86), math.radians(210)),
    Part.LineSegment(Vector(108.752344, 20.71614, 0), Vector(118.299577, 4.179848, 0)),
    Part.ArcOfCircle(Part.Circle(Vector(120.897653, 5.679848, 0), Vector(0, 0, 1), 3), math.radians(-150), math.radians(-70.005102)),
    Part.LineSegment(Vector(161.806024, 13.116149, 0), Vector(133.507464, 2.819169, 0)),
    Part.ArcOfCircle(Part.Circle(Vector(134.533274, 0, 0), Vector(0, 0, 1), 3), math.radians(109.994898), math.radians(250.005102)),
    Part.LineSegment(Vector(133.507464, -2.819169, 0), Vector(161.806024, -13.116149, 0)),
    Part.ArcOfCircle(Part.Circle(Vector(162.831834, -10.29698, 0), Vector(0, 0, 1), 3), math.radians(-109.994898), math.radians(-72.614822)),
    Part.LineSegment(Vector(163.728216, -13.159933, 0), Vector(196.615731, -2.862953, 0)),
    Part.ArcOfCircle(Part.Circle(Vector(195.719349, 0, 0), Vector(0, 0, 1), 3), math.radians(-72.614822), math.radians(72.614822)),
    Part.LineSegment(Vector(196.615731, 2.862953, 0), Vector(163.728216, 13.159933, 0)),
    Part.ArcOfCircle(Part.Circle(Vector(162.831834, 10.29698, 0), Vector(0, 0, 1), 3), math.radians(72.614822), math.radians(109.994898)),
    Part.LineSegment(Vector(233.729196, 3.817271, 0), Vector(186.013313, 18.756967, 0)),
    Part.ArcOfCircle(Part.Circle(Vector(184.818138, 14.939696, 0), Vector(0, 0, 1), 4), math.radians(72.614822), math.radians(252.614822)),
    Part.LineSegment(Vector(183.622962, 11.122426, 0), Vector(206.95489, 3.817271, 0)),
    Part.LineSegment(Vector(206.95489, 3.817271, 0), Vector(233.729196, 3.817271, 0)),
    Part.LineSegment(Vector(186.013313, -18.756967, 0), Vector(233.729196, -3.817271, 0)),
    Part.LineSegment(Vector(233.729196, -3.817271, 0), Vector(206.95489, -3.817271, 0)),
    Part.LineSegment(Vector(206.95489, -3.817271, 0), Vector(183.622962, -11.122426, 0)),
    Part.ArcOfCircle(Part.Circle(Vector(184.818138, -14.939696, 0), Vector(0, 0, 1), 4), math.radians(107.385178), math.radians(287.385178)),
], False)
sketch12.addConstraint([
    Sketcher.Constraint("Tangent", 0, 2, 1, 1),
    Sketcher.Constraint("Tangent", 1, 2, 2, 1),
    Sketcher.Constraint("Tangent", 2, 2, 3, 1),
    Sketcher.Constraint("Tangent", 3, 2, 4, 1),
    Sketcher.Constraint("Tangent", 4, 2, 5, 1),
    Sketcher.Constraint("Tangent", 5, 2, 6, 1),
    Sketcher.Constraint("Tangent", 6, 2, 7, 1),
    Sketcher.Constraint("Tangent", 7, 2, 8, 1),
    Sketcher.Constraint("Tangent", 8, 2, 9, 1),
    Sketcher.Constraint("Tangent", 9, 2, 10, 1),
    Sketcher.Constraint("Tangent", 10, 2, 11, 1),
    Sketcher.Constraint("Tangent", 11, 2, 0, 1),
    Sketcher.Constraint("Tangent", 12, 2, 13, 1),
    Sketcher.Constraint("Tangent", 13, 2, 14, 1),
    Sketcher.Constraint("Tangent", 14, 2, 15, 1),
    Sketcher.Constraint("Tangent", 15, 2, 16, 1),
    Sketcher.Constraint("Tangent", 16, 2, 17, 1),
    Sketcher.Constraint("Tangent", 17, 2, 18, 1),
    Sketcher.Constraint("Tangent", 18, 2, 19, 1),
    Sketcher.Constraint("Tangent", 19, 2, 20, 1),
    Sketcher.Constraint("Tangent", 20, 2, 21, 1),
    Sketcher.Constraint("Tangent", 21, 2, 22, 1),
    Sketcher.Constraint("Tangent", 22, 2, 23, 1),
    Sketcher.Constraint("Tangent", 23, 2, 12, 1),
    Sketcher.Constraint("Tangent", 24, 2, 25, 1),
    Sketcher.Constraint("Tangent", 25, 2, 26, 1),
    Sketcher.Constraint("Tangent", 26, 2, 27, 1),
    Sketcher.Constraint("Tangent", 27, 2, 28, 1),
    Sketcher.Constraint("Tangent", 28, 2, 29, 1),
    Sketcher.Constraint("Tangent", 29, 2, 30, 1),
    Sketcher.Constraint("Tangent", 30, 2, 31, 1),
    Sketcher.Constraint("Tangent", 31, 2, 32, 1),
    Sketcher.Constraint("Tangent", 32, 2, 33, 1),
    Sketcher.Constraint("Tangent", 33, 2, 34, 1),
    Sketcher.Constraint("Tangent", 34, 2, 35, 1),
    Sketcher.Constraint("Tangent", 35, 2, 24, 1),
    Sketcher.Constraint("Tangent", 36, 2, 37, 1),
    Sketcher.Constraint("Tangent", 37, 2, 38, 1),
    Sketcher.Constraint("Tangent", 38, 2, 39, 1),
    Sketcher.Constraint("Tangent", 39, 2, 40, 1),
    Sketcher.Constraint("Tangent", 40, 2, 41, 1),
    Sketcher.Constraint("Tangent", 41, 2, 36, 1),
    Sketcher.Constraint("Tangent", 42, 2, 43, 1),
    Sketcher.Constraint("Tangent", 43, 2, 44, 1),
    Sketcher.Constraint("Tangent", 44, 2, 45, 1),
    Sketcher.Constraint("Tangent", 45, 2, 46, 1),
    Sketcher.Constraint("Tangent", 46, 2, 47, 1),
    Sketcher.Constraint("Tangent", 47, 2, 42, 1),
    Sketcher.Constraint("Tangent", 48, 2, 49, 1),
    Sketcher.Constraint("Tangent", 49, 2, 50, 1),
    Sketcher.Constraint("Tangent", 50, 2, 51, 1),
    Sketcher.Constraint("Tangent", 51, 2, 52, 1),
    Sketcher.Constraint("Tangent", 52, 2, 53, 1),
    Sketcher.Constraint("Tangent", 53, 2, 54, 1),
    Sketcher.Constraint("Tangent", 54, 2, 55, 1),
    Sketcher.Constraint("Tangent", 55, 2, 48, 1),
    Sketcher.Constraint("Tangent", 56, 2, 57, 1),
    Sketcher.Constraint("Tangent", 57, 2, 58, 1),
    Sketcher.Constraint("Coincident", 58, 2, 59, 1),
    Sketcher.Constraint("Coincident", 59, 2, 56, 1),
    Sketcher.Constraint("Coincident", 60, 2, 61, 1),
    Sketcher.Constraint("Coincident", 61, 2, 62, 1),
    Sketcher.Constraint("Tangent", 62, 2, 63, 1),
    Sketcher.Constraint("Tangent", 63, 2, 60, 1),
    Sketcher.Constraint("Horizontal", 28),
    Sketcher.Constraint("Horizontal", 34),
    Sketcher.Constraint("Horizontal", 59),
    Sketcher.Constraint("Horizontal", 61),
    Sketcher.Constraint("Equal", 1, 3),
    Sketcher.Constraint("Equal", 3, 5),
    Sketcher.Constraint("Equal", 5, 7),
    Sketcher.Constraint("Equal", 7, 9),
    Sketcher.Constraint("Equal", 9, 11),
    Sketcher.Constraint("Equal", 11, 13),
    Sketcher.Constraint("Equal", 13, 15),
    Sketcher.Constraint("Equal", 15, 17),
    Sketcher.Constraint("Equal", 17, 19),
    Sketcher.Constraint("Equal", 19, 21),
    Sketcher.Constraint("Equal", 21, 23),
    Sketcher.Constraint("Equal", 23, 25),
    Sketcher.Constraint("Equal", 25, 27),
    Sketcher.Constraint("Equal", 27, 29),
    Sketcher.Constraint("Equal", 29, 31),
    Sketcher.Constraint("Equal", 31, 33),
    Sketcher.Constraint("Equal", 33, 35),
    Sketcher.Constraint("Equal", 35, 36),
    Sketcher.Constraint("Equal", 36, 38),
    Sketcher.Constraint("Equal", 38, 40),
    Sketcher.Constraint("Equal", 40, 43),
    Sketcher.Constraint("Equal", 43, 45),
    Sketcher.Constraint("Equal", 45, 47),
    Sketcher.Constraint("Equal", 47, 49),
    Sketcher.Constraint("Equal", 49, 51),
    Sketcher.Constraint("Equal", 51, 53),
    Sketcher.Constraint("Equal", 53, 55),
    Sketcher.Constraint("Equal", 57, 63),
    Sketcher.Constraint("Symmetric", 7, 3, 13, 3, -1),
    Sketcher.Constraint("Symmetric", 5, 3, 15, 3, -1),
    Sketcher.Constraint("Symmetric", 3, 3, 17, 3, -1),
    Sketcher.Constraint("Symmetric", 1, 3, 19, 3, -1),
    Sketcher.Constraint("Symmetric", 11, 3, 21, 3, -1),
    Sketcher.Constraint("Symmetric", 9, 3, 23, 3, -1),
    Sketcher.Constraint("Symmetric", 29, 3, 33, 3, -1),
    Sketcher.Constraint("Symmetric", 38, 3, 43, 3, -1),
    Sketcher.Constraint("Symmetric", 36, 3, 45, 3, -1),
    Sketcher.Constraint("Symmetric", 40, 3, 47, 3, -1),
    Sketcher.Constraint("Symmetric", 51, 3, 55, 3, -1),
    Sketcher.Constraint("Symmetric", 57, 3, 63, 3, -1),
    Sketcher.Constraint("Symmetric", 24, 2, 25, 2, -1),
    Sketcher.Constraint("Symmetric", 59, 2, 60, 2, -1),
    Sketcher.Constraint("PointOnObject", 31, 3, -1),
    Sketcher.Constraint("PointOnObject", 49, 3, -1),
    Sketcher.Constraint("PointOnObject", 53, 3, -1),
    Sketcher.Constraint("Parallel", 0, 6),
    Sketcher.Constraint("Parallel", 2, 8),
    Sketcher.Constraint("Parallel", 4, 10),
    Sketcher.Constraint("Parallel", 24, 30),
    Sketcher.Constraint("Parallel", 20, 37),
    Sketcher.Constraint("Parallel", 30, 41),
    Sketcher.Constraint("Parallel", 42, 48),
    Sketcher.Constraint("Parallel", 54, 56),
    Sketcher.Constraint("Parallel", 56, 58),
    Sketcher.Constraint("Parallel", 60, 62),
    Sketcher.Constraint("Equal", 0, 2),
    Sketcher.Constraint("Equal", 2, 4),
    Sketcher.Constraint("Equal", 4, 6),
    Sketcher.Constraint("Radius", 1, Q("3 mm")),
    Sketcher.Constraint("Radius", 57, Q("4 mm")),
    Sketcher.Constraint("Angle", 0, Q("176 deg")),
    Sketcher.Constraint("Angle", 2, Q("-124 deg")),
    Sketcher.Constraint("Angle", 4, Q("-64 deg")),
    Sketcher.Constraint("Angle", 24, Q("-120 deg")),
    Sketcher.Constraint("Distance", 56, Q("50 mm")),
    Sketcher.Constraint("DistanceY", 27, 3, -1, 1, Q("17 mm")),
    Sketcher.Constraint("DistanceX", 28, 1, 28, 2, Q("19.629909 mm")),
    Sketcher.Constraint("Distance", 37, Q("46.24084 mm")),
    Sketcher.Constraint("Distance", 39, Q("38.92739 mm")),
    Sketcher.Constraint("Distance", 52, Q("34.461812 mm")),
    Sketcher.Constraint("DistanceX", 59, 1, 59, 2, Q("26.774306 mm")),
    Sketcher.Constraint("DistanceX", -1, 1, 1, 3, Q("53.19122 mm")),
    Sketcher.Constraint("DistanceY", -1, 1, 3, 3, Q("17.188771 mm")),
    Sketcher.Constraint("DistanceY", -1, 1, 5, 3, Q("7.329311 mm")),
    Sketcher.Constraint("DistanceX", -1, 1, 25, 3, Q("73.370091 mm")),
    Sketcher.Constraint("DistanceX", -1, 1, 36, 3, Q("111.35042 mm")),
    Sketcher.Constraint("DistanceY", 36, 3, -1, 1, Q("22.21614 mm")),
    Sketcher.Constraint("DistanceX", -1, 1, 53, 3, Q("195.719349 mm")),
    Sketcher.Constraint("DistanceX", -1, 1, 57, 2, Q("183.622962 mm")),
    Sketcher.Constraint("DistanceY", -1, 1, 58, 2, Q("3.817271 mm")),
])
pocket10 = body.newObject("PartDesign::Pocket", "Pocket009")
pocket10.Profile = sketch12
pocket10.Length = 10
doc.recompute()

fillet = body.newObject("PartDesign::Fillet", "Fillet")
fillet.Base = (pocket10, edges_at(pocket10, [(233.729, -3.817, 1.5), (233.729, 3.817, 1.5)]))
fillet.Radius = 3
doc.recompute()

fillet2 = body.newObject("PartDesign::Fillet", "Fillet001")
fillet2.Base = (fillet, edges_at(fillet, [(206.955, -3.817, 1.5), (206.955, 3.817, 1.5)]))
fillet2.Radius = 6

doc.recompute()
